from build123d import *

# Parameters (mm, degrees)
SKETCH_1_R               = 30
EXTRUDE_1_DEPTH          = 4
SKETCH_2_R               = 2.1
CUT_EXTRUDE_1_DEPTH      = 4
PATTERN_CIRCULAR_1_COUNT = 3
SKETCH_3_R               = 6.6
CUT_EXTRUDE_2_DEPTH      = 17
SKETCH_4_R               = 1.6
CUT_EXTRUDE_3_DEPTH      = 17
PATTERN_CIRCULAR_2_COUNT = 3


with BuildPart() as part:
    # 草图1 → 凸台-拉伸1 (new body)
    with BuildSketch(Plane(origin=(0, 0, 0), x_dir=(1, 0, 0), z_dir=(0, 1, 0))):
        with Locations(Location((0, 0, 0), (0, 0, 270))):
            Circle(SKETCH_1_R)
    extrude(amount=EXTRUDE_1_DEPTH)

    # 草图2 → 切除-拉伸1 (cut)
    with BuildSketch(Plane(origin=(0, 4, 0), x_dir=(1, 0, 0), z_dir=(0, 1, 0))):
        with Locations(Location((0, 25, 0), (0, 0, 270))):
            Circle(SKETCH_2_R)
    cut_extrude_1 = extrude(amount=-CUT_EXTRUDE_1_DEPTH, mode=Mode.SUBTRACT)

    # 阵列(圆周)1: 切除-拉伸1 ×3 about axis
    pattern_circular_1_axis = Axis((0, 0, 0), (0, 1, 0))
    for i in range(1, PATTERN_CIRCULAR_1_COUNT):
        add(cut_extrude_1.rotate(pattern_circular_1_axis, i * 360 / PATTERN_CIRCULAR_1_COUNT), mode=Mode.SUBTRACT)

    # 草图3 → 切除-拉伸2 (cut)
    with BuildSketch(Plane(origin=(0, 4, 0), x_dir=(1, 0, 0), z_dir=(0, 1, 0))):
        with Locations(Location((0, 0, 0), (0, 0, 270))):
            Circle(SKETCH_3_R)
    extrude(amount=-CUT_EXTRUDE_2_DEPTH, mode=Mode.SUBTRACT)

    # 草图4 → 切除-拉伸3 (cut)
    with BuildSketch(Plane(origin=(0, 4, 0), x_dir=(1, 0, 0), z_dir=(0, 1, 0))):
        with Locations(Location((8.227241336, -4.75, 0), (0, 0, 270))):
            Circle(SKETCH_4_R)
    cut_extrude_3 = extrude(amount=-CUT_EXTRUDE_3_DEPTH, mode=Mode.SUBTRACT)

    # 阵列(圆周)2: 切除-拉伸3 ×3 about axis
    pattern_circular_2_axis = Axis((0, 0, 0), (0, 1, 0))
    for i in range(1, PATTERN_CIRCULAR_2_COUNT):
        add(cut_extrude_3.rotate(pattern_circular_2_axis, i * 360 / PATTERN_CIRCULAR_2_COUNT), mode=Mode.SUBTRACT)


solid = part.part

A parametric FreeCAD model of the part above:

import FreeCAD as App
import Part
import Sketcher

V = App.Vector

doc = App.newDocument("Part")
params = doc.addObject("Spreadsheet::Sheet", "Params")
for row, (alias, value) in enumerate([
    ("sketch1_diameter", "60 mm"),
    ("pad1_length", "4 mm"),
    ("sketch2_diameter", "4.2 mm"),
    ("pocket1_length", "4 mm"),
    ("sketch3_diameter", "13.2 mm"),
    ("pocket2_length", "17 mm"),
    ("sketch4_diameter", "3.2 mm"),
    ("pocket3_length", "17 mm"),
], start=1):
    params.set(f"A{row}", alias)
    params.set(f"B{row}", "=" + value)
    params.setAlias(f"B{row}", alias)

body = doc.addObject("PartDesign::Body", "Body")

# Sketch on XZ plane
sketch1 = doc.addObject("Sketcher::SketchObject", "Sketch")
body.addObject(sketch1)
sketch1.AttachmentSupport = (doc.XZ_Plane, [""])
sketch1.MapMode = "FlatFace"
sketch1.addGeometry(Part.Circle(V(0, 0, 0), V(0, 0, 1), 30), False)
sketch1.addConstraint(Sketcher.Constraint("Coincident", 0, 3, -1, 1))
sketch1.addConstraint(Sketcher.Constraint("Diameter", 0, 60.0))
sketch1.setExpression("Constraints[1]", "Params.sketch1_diameter")
pad1 = doc.addObject("PartDesign::Pad", "Pad")
body.addObject(pad1)
pad1.Profile = sketch1
pad1.setExpression("Length", "Params.pad1_length")
pad1.Reversed = True

# Sketch on XZ plane
sketch2 = doc.addObject("Sketcher::SketchObject", "Sketch001")
body.addObject(sketch2)
sketch2.AttachmentSupport = (doc.XZ_Plane, [""])
sketch2.MapMode = "FlatFace"
sketch2.AttachmentOffset = App.Placement(V(0, 0, -4), App.Rotation())
sketch2.addGeometry(Part.Circle(V(0, -25, 0), V(0, 0, 1), 2.1), False)
sketch2.addConstraint(Sketcher.Constraint("PointOnObject", 0, 3, -2))
sketch2.addConstraint(Sketcher.Constraint("Diameter", 0, 4.2))
sketch2.addConstraint(Sketcher.Constraint("DistanceY", 0, 3, -1, 1, 25.0))
sketch2.setExpression("Constraints[1]", "Params.sketch2_diameter")
pocket1 = doc.addObject("PartDesign::Pocket", "Pocket")
body.addObject(pocket1)
pocket1.Profile = sketch2
pocket1.setExpression("Length", "Params.pocket1_length")
pocket1.Reversed = True
doc.recompute()

polarpattern = doc.addObject("PartDesign::PolarPattern", "PolarPattern")
body.addObject(polarpattern)
polarpattern.Originals = [pocket1]
polarpattern.Axis = (doc.Y_Axis, [""])
polarpattern.Angle = 360
polarpattern.Occurrences = 3
body.Tip = polarpattern

# Sketch on XZ plane
sketch3 = doc.addObject("Sketcher::SketchObject", "Sketch002")
body.addObject(sketch3)
sketch3.AttachmentSupport = (doc.XZ_Plane, [""])
sketch3.MapMode = "FlatFace"
sketch3.AttachmentOffset = App.Placement(V(0, 0, -4), App.Rotation())
sketch3.addGeometry(Part.Circle(V(0, 0, 0), V(0, 0, 1), 7), False)
sketch3.addConstraint(Sketcher.Constraint("Coincident", 0, 3, -1, 1))
sketch3.addConstraint(Sketcher.Constraint("Diameter", 0, 13.2))
sketch3.setExpression("Constraints[1]", "Params.sketch3_diameter")
pocket2 = doc.addObject("PartDesign::Pocket", "Pocket001")
body.addObject(pocket2)
pocket2.Profile = sketch3
pocket2.setExpression("Length", "Params.pocket2_length")
pocket2.Reversed = True

# Sketch on XZ plane
sketch4 = doc.addObject("Sketcher::SketchObject", "Sketch003")
body.addObject(sketch4)
sketch4.AttachmentSupport = (doc.XZ_Plane, [""])
sketch4.MapMode = "FlatFace"
sketch4.AttachmentOffset = App.Placement(V(0, 0, -4), App.Rotation())
sketch4.addGeometry(Part.Circle(V(8.2, 4.8, 0), V(0, 0, 1), 1.6), False)
sketch4.addConstraint(Sketcher.Constraint("Diameter", 0, 3.2))
sketch4.addConstraint(Sketcher.Constraint("DistanceY", -1, 1, 0, 3, 4.75))
sketch4.addConstraint(Sketcher.Constraint("DistanceX", -1, 1, 0, 3, 8.227241))
sketch4.setExpression("Constraints[0]", "Params.sketch4_diameter")
pocket3 = doc.addObject("PartDesign::Pocket", "Pocket002")
body.addObject(pocket3)
pocket3.Profile = sketch4
pocket3.setExpression("Length", "Params.pocket3_length")
pocket3.Reversed = True
doc.recompute()

polarpattern2 = doc.addObject("PartDesign::PolarPattern", "PolarPattern001")
body.addObject(polarpattern2)
polarpattern2.Originals = [pocket3]
polarpattern2.Axis = (doc.Y_Axis, [""])
polarpattern2.Angle = 360
polarpattern2.Occurrences = 3
body.Tip = polarpattern2

doc.recompute()
